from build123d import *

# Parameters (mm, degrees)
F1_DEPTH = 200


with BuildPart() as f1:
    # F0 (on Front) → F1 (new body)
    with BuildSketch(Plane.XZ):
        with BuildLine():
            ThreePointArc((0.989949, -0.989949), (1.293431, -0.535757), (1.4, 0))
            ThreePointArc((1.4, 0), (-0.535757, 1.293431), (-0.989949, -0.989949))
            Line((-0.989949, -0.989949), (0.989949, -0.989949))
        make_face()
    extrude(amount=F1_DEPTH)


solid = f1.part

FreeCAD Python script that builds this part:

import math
import FreeCAD as App
import Part
import Sketcher
from FreeCAD import Vector
Q = App.Units.Quantity

doc = App.newDocument("Part")
params = doc.addObject("Spreadsheet::Sheet", "Params")
for row, (alias, value) in enumerate([
    ("sketch1_radius", "1.399998 mm"),
    ("pad1_length", "200 mm"),
], start=1):
    params.set(f"A{row}", alias)
    params.set(f"B{row}", "=" + value)
    params.setAlias(f"B{row}", alias)

body = doc.addObject("PartDesign::Body", "Body")

# Sketch on XZ plane
sketch1 = body.newObject("Sketcher::SketchObject", "Sketch")
sketch1.AttachmentSupport = (doc.getObject("XZ_Plane"), [""])
sketch1.MapMode = "FlatFace"
sketch1.addGeometry([
    Part.ArcOfCircle(Part.Circle(Vector(0.000002, 0, 0), Vector(0, 0, 1), 1.399998), math.radians(-45.000056), math.radians(-0.000013)),
    Part.ArcOfCircle(Part.Circle(Vector(0, 0, 0), Vector(0, 0, 1), 1.4), math.radians(-0.000009), math.radians(224.999997)),
    Part.LineSegment(Vector(-0.989949, -0.989949, 0), Vector(0.989949, -0.989949, 0)),
], False)
sketch1.addConstraint([
    Sketcher.Constraint("Tangent", 0, 2, 1, 1),
    Sketcher.Constraint("Coincident", 1, 2, 2, 1),
    Sketcher.Constraint("Coincident", 2, 2, 0, 1),
    Sketcher.Constraint("Horizontal", 2),
    Sketcher.Constraint("Coincident", 0, 3, -1, 1),
    Sketcher.Constraint("Equal", 0, 1),
    Sketcher.Constraint("PointOnObject", 0, 2, -1),
    Sketcher.Constraint("Radius", 0, Q("1.399998 mm")),
    Sketcher.Constraint("DistanceX", 1, 2, 2, 2, Q("1.979898 mm")),
])
sketch1.setExpression("Constraints[7]", "Params.sketch1_radius")
pad1 = body.newObject("PartDesign::Pad", "Pad")
pad1.Profile = sketch1
pad1.setExpression("Length", "Params.pad1_length")

doc.recompute()
